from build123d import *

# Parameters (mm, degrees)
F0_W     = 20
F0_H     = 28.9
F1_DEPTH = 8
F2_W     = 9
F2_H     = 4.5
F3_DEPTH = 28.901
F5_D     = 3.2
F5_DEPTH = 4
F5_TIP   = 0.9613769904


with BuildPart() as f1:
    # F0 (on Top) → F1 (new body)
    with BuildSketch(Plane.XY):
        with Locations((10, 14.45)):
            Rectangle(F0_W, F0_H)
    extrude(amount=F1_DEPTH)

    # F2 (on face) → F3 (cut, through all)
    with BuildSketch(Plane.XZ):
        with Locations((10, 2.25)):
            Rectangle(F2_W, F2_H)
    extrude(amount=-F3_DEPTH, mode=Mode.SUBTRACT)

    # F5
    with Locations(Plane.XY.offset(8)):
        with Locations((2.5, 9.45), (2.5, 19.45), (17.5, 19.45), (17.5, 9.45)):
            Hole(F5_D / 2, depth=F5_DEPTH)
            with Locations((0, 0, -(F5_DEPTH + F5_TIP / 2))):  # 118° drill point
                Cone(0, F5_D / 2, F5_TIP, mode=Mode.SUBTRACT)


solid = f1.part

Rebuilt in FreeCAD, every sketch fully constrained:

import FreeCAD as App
import Part
import Sketcher
from FreeCAD import Vector
Q = App.Units.Quantity


def add_polygon(sketch, points):
    """Adds a closed chain of lines whose ends are joined by coincident constraints."""
    first, n = sketch.GeometryCount, len(points)
    for a, b in zip(points, points[1:] + points[:1]):
        sketch.addGeometry(Part.LineSegment(App.Vector(*a, 0), App.Vector(*b, 0)), False)
    for i in range(n):
        sketch.addConstraint(Sketcher.Constraint("Coincident", first + i, 2, first + (i + 1) % n, 1))

doc = App.newDocument("Part")
body = doc.addObject("PartDesign::Body", "Body")

# Sketch on XY plane
sketch1 = body.newObject("Sketcher::SketchObject", "Sketch")
sketch1.AttachmentSupport = (doc.getObject("XY_Plane"), [""])
sketch1.MapMode = "FlatFace"
add_polygon(sketch1, [(0, 28.9), (0, 0), (20, 0), (20, 28.9)])  # lines 0-3
sketch1.addConstraint([
    Sketcher.Constraint("Vertical", 0),
    Sketcher.Constraint("Horizontal", 1),
    Sketcher.Constraint("Vertical", 2),
    Sketcher.Constraint("Horizontal", 3),
    Sketcher.Constraint("Coincident", 0, 2, -1, 1),
    Sketcher.Constraint("DistanceX", 1, 1, 1, 2, Q("20 mm")),
    Sketcher.Constraint("DistanceY", 0, 2, 0, 1, Q("28.9 mm")),
])
pad1 = body.newObject("PartDesign::Pad", "Pad")
pad1.Profile = sketch1
pad1.Length = 8

# Sketch on XZ plane
sketch2 = body.newObject("Sketcher::SketchObject", "Sketch001")
sketch2.AttachmentSupport = (doc.getObject("XZ_Plane"), [""])
sketch2.MapMode = "FlatFace"
add_polygon(sketch2, [(5.5, 4.5), (5.5, 0), (14.5, 0), (14.5, 4.5)])  # lines 0-3
sketch2.addConstraint([
    Sketcher.Constraint("Vertical", 0),
    Sketcher.Constraint("Horizontal", 1),
    Sketcher.Constraint("Vertical", 2),
    Sketcher.Constraint("Horizontal", 3),
    Sketcher.Constraint("PointOnObject", 0, 2, -1),
    Sketcher.Constraint("DistanceX", 1, 1, 1, 2, Q("9 mm")),
    Sketcher.Constraint("DistanceY", 0, 2, 0, 1, Q("4.5 mm")),
    Sketcher.Constraint("DistanceX", -1, 1, 0, 2, Q("5.5 mm")),
])
pocket1 = body.newObject("PartDesign::Pocket", "Pocket")
pocket1.Profile = sketch2
pocket1.Type = "ThroughAll"

# Sketch on XY plane
sketch3 = body.newObject("Sketcher::SketchObject", "Sketch002")
sketch3.AttachmentSupport = (doc.getObject("XY_Plane"), [""])
sketch3.MapMode = "FlatFace"
sketch3.AttachmentOffset = App.Placement(Vector(0, 0, 8), App.Rotation())
sketch3.addGeometry([
    Part.Circle(Vector(2.5, 9.45, 0), Vector(0, 0, 1), 1.6),
    Part.Circle(Vector(2.5, 19.45, 0), Vector(0, 0, 1), 1.6),
    Part.Circle(Vector(17.5, 19.45, 0), Vector(0, 0, 1), 1.6),
    Part.Circle(Vector(17.5, 9.45, 0), Vector(0, 0, 1), 1.6),
], False)
sketch3.addConstraint([
    Sketcher.Constraint("Equal", 0, 1),
    Sketcher.Constraint("Equal", 1, 2),
    Sketcher.Constraint("Equal", 2, 3),
    Sketcher.Constraint("Horizontal", 1, 3, 2, 3),
    Sketcher.Constraint("Horizontal", 0, 3, 3, 3),
    Sketcher.Constraint("Vertical", 0, 3, 1, 3),
    Sketcher.Constraint("Vertical", 2, 3, 3, 3),
    Sketcher.Constraint("Diameter", 0, Q("3.2 mm")),
    Sketcher.Constraint("DistanceY", 0, 3, 1, 3, Q("10 mm")),
    Sketcher.Constraint("DistanceX", 1, 3, 2, 3, Q("15 mm")),
    Sketcher.Constraint("DistanceX", -1, 1, 0, 3, Q("2.5 mm")),
    Sketcher.Constraint("DistanceY", -1, 1, 0, 3, Q("9.45 mm")),
])
doc.recompute()
hole = body.newObject("PartDesign::Hole", "Hole")
hole.Profile = sketch3
hole.ThreadType = "None"
hole.Diameter = 3.2
hole.DepthType = "Dimension"
hole.Depth = 4
hole.DrillPoint = "Angled"
hole.DrillPointAngle = 118

doc.recompute()
